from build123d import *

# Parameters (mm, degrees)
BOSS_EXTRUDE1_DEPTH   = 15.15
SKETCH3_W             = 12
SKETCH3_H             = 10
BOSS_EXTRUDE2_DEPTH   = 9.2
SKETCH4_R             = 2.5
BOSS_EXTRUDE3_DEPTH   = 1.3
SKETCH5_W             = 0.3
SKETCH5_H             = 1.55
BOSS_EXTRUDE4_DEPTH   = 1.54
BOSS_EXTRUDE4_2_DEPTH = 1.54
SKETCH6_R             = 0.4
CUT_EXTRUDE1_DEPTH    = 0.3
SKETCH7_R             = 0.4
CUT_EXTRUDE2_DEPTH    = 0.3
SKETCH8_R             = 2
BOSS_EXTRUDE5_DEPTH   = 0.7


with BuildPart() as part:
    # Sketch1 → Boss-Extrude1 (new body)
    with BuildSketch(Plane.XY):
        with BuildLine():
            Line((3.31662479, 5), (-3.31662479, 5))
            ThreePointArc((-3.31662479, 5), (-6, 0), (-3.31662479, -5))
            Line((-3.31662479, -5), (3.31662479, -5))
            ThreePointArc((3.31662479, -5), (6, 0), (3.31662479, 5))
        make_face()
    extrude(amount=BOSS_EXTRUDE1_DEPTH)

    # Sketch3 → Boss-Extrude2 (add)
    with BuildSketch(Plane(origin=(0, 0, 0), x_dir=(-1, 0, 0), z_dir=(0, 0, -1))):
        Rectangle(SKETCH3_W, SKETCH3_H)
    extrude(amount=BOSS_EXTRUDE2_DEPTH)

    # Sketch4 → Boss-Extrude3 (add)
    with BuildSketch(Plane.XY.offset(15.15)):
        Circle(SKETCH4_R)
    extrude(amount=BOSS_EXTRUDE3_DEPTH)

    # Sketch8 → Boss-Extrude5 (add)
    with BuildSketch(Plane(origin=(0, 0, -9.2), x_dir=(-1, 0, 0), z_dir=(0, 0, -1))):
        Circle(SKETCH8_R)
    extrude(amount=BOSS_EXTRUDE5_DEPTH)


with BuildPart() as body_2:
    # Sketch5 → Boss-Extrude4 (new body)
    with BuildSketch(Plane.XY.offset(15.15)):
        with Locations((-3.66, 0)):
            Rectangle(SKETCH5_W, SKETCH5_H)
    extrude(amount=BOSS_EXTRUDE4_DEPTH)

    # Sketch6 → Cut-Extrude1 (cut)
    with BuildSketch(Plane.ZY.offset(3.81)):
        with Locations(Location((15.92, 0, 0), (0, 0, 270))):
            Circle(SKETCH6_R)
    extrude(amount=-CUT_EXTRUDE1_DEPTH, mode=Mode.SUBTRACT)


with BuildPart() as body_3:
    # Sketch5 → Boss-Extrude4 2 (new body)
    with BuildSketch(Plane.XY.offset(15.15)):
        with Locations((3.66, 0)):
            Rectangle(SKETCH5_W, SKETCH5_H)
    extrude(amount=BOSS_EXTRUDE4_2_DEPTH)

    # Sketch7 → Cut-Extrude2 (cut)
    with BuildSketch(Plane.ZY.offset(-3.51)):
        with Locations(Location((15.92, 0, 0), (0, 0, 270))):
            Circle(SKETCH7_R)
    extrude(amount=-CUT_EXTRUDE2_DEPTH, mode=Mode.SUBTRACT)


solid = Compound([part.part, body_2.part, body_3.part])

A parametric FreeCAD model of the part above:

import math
import FreeCAD as App
import Part
import Sketcher
from FreeCAD import Vector

doc = App.newDocument("Part")
body = doc.addObject("PartDesign::Body", "Body")

# Sketch on XY plane
sketch1 = body.newObject("Sketcher::SketchObject", "Sketch")
sketch1.AttachmentSupport = (doc.getObject("XY_Plane"), [""])
sketch1.MapMode = "FlatFace"
sketch1.addGeometry([
    Part.LineSegment(Vector(3, 5, 0), Vector(-3, 5, 0)),
    Part.ArcOfCircle(Part.Circle(Vector(0, 0, 0), Vector(0, 0, 1), 6), math.radians(124), math.radians(236)),
    Part.LineSegment(Vector(-3, -5, 0), Vector(3, -5, 0)),
    Part.ArcOfCircle(Part.Circle(Vector(0, 0, 0), Vector(0, 0, 1), 6), math.radians(-56), math.radians(56)),
], False)
sketch1.addConstraint([
    Sketcher.Constraint("Coincident", 0, 2, 1, 1),
    Sketcher.Constraint("Coincident", 1, 2, 2, 1),
    Sketcher.Constraint("Coincident", 2, 2, 3, 1),
    Sketcher.Constraint("Coincident", 3, 2, 0, 1),
    Sketcher.Constraint("Horizontal", 0),
    Sketcher.Constraint("Horizontal", 2),
    Sketcher.Constraint("Coincident", 1, 3, -1, 1),
    Sketcher.Constraint("Coincident", 3, 3, -1, 1),
    Sketcher.Constraint("Equal", 1, 3),
    Sketcher.Constraint("Vertical", 0, 2, 1, 2),
    Sketcher.Constraint("Radius", 1, 6.0),
    Sketcher.Constraint("DistanceY", -1, 1, 0, 2, 5.0),
])
pad1 = body.newObject("PartDesign::Pad", "Pad")
pad1.Profile = sketch1
pad1.Length = 15.15

# Sketch on XY plane
sketch2 = body.newObject("Sketcher::SketchObject", "Sketch001")
sketch2.AttachmentSupport = (doc.getObject("XY_Plane"), [""])
sketch2.MapMode = "FlatFace"
sketch2.addGeometry([
    Part.LineSegment(Vector(6, 5, 0), Vector(6, -5, 0)),
    Part.LineSegment(Vector(6, -5, 0), Vector(-6, -5, 0)),
    Part.LineSegment(Vector(-6, -5, 0), Vector(-6, 5, 0)),
    Part.LineSegment(Vector(-6, 5, 0), Vector(6, 5, 0)),
], False)
sketch2.addConstraint([
    Sketcher.Constraint("Coincident", 0, 2, 1, 1),
    Sketcher.Constraint("Coincident", 1, 2, 2, 1),
    Sketcher.Constraint("Coincident", 2, 2, 3, 1),
    Sketcher.Constraint("Coincident", 3, 2, 0, 1),
    Sketcher.Constraint("Vertical", 0),
    Sketcher.Constraint("Horizontal", 1),
    Sketcher.Constraint("Vertical", 2),
    Sketcher.Constraint("Horizontal", 3),
    Sketcher.Constraint("Symmetric", 0, 2, 2, 2, -1, 1),
    Sketcher.Constraint("DistanceX", 1, 2, 1, 1, 12.0),
    Sketcher.Constraint("DistanceY", 0, 2, 0, 1, 10.0),
])
pad2 = body.newObject("PartDesign::Pad", "Pad001")
pad2.Profile = sketch2
pad2.Length = 9.2
pad2.Reversed = True

# Sketch on XY plane
sketch3 = body.newObject("Sketcher::SketchObject", "Sketch002")
sketch3.AttachmentSupport = (doc.getObject("XY_Plane"), [""])
sketch3.MapMode = "FlatFace"
sketch3.AttachmentOffset = App.Placement(Vector(0, 0, 15.15), App.Rotation())
sketch3.addGeometry(Part.Circle(Vector(0, 0, 0), Vector(0, 0, 1), 2.5), False)
sketch3.addConstraint([
    Sketcher.Constraint("Coincident", 0, 3, -1, 1),
    Sketcher.Constraint("Diameter", 0, 5.0),
])
pad3 = body.newObject("PartDesign::Pad", "Pad002")
pad3.Profile = sketch3
pad3.Length = 1.3

# Sketch on XY plane
sketch4 = body.newObject("Sketcher::SketchObject", "Sketch003")
sketch4.AttachmentSupport = (doc.getObject("XY_Plane"), [""])
sketch4.MapMode = "FlatFace"
sketch4.AttachmentOffset = App.Placement(Vector(0, 0, -9.2), App.Rotation())
sketch4.addGeometry(Part.Circle(Vector(0, 0, 0), Vector(0, 0, 1), 2), False)
sketch4.addConstraint([
    Sketcher.Constraint("Coincident", 0, 3, -1, 1),
    Sketcher.Constraint("Diameter", 0, 4.0),
])
pad4 = body.newObject("PartDesign::Pad", "Pad003")
pad4.Profile = sketch4
pad4.Length = 0.7
pad4.Reversed = True
body2 = doc.addObject("PartDesign::Body", "Body001")

# Sketch on XY plane
sketch5 = body2.newObject("Sketcher::SketchObject", "Sketch004")
sketch5.AttachmentSupport = (doc.getObject("XY_Plane001"), [""])
sketch5.MapMode = "FlatFace"
sketch5.AttachmentOffset = App.Placement(Vector(0, 0, 15.15), App.Rotation())
sketch5.addGeometry([
    Part.LineSegment(Vector(-3.81, 0.78, 0), Vector(-3.81, -0.78, 0)),
    Part.LineSegment(Vector(-3.81, -0.78, 0), Vector(-3.51, -0.78, 0)),
    Part.LineSegment(Vector(-3.51, -0.78, 0), Vector(-3.51, 0.78, 0)),
    Part.LineSegment(Vector(-3.51, 0.78, 0), Vector(-3.81, 0.78, 0)),
], False)
sketch5.addConstraint([
    Sketcher.Constraint("Coincident", 0, 2, 1, 1),
    Sketcher.Constraint("Coincident", 1, 2, 2, 1),
    Sketcher.Constraint("Coincident", 2, 2, 3, 1),
    Sketcher.Constraint("Coincident", 3, 2, 0, 1),
    Sketcher.Constraint("Vertical", 0),
    Sketcher.Constraint("Horizontal", 1),
    Sketcher.Constraint("Vertical", 2),
    Sketcher.Constraint("Horizontal", 3),
    Sketcher.Constraint("DistanceX", 1, 1, 1, 2, 0.3),
    Sketcher.Constraint("DistanceY", 0, 2, 0, 1, 1.55),
    Sketcher.Constraint("DistanceX", 0, 2, -1, 1, 3.81),
    Sketcher.Constraint("DistanceY", 0, 2, -1, 1, 0.775),
])
pad5 = body2.newObject("PartDesign::Pad", "Pad004")
pad5.Profile = sketch5
pad5.Length = 1.54

# Sketch on YZ plane
sketch6 = body2.newObject("Sketcher::SketchObject", "Sketch005")
sketch6.AttachmentSupport = (doc.getObject("YZ_Plane001"), [""])
sketch6.MapMode = "FlatFace"
sketch6.AttachmentOffset = App.Placement(Vector(0, 0, -3.81), App.Rotation())
sketch6.addGeometry(Part.Circle(Vector(0, 15.92, 0), Vector(0, 0, 1), 0.4), False)
sketch6.addConstraint([
    Sketcher.Constraint("PointOnObject", 0, 3, -2),
    Sketcher.Constraint("Diameter", 0, 0.8),
    Sketcher.Constraint("DistanceY", -1, 1, 0, 3, 15.92),
])
pocket1 = body2.newObject("PartDesign::Pocket", "Pocket")
pocket1.Profile = sketch6
pocket1.Length = 0.3
pocket1.Reversed = True
body3 = doc.addObject("PartDesign::Body", "Body002")

# Sketch on XY plane
sketch7 = body3.newObject("Sketcher::SketchObject", "Sketch006")
sketch7.AttachmentSupport = (doc.getObject("XY_Plane002"), [""])
sketch7.MapMode = "FlatFace"
sketch7.AttachmentOffset = App.Placement(Vector(0, 0, 15.15), App.Rotation())
sketch7.addGeometry([
    Part.LineSegment(Vector(3.51, 0.78, 0), Vector(3.51, -0.78, 0)),
    Part.LineSegment(Vector(3.51, -0.78, 0), Vector(3.81, -0.78, 0)),
    Part.LineSegment(Vector(3.81, -0.78, 0), Vector(3.81, 0.78, 0)),
    Part.LineSegment(Vector(3.81, 0.78, 0), Vector(3.51, 0.78, 0)),
], False)
sketch7.addConstraint([
    Sketcher.Constraint("Coincident", 0, 2, 1, 1),
    Sketcher.Constraint("Coincident", 1, 2, 2, 1),
    Sketcher.Constraint("Coincident", 2, 2, 3, 1),
    Sketcher.Constraint("Coincident", 3, 2, 0, 1),
    Sketcher.Constraint("Vertical", 0),
    Sketcher.Constraint("Horizontal", 1),
    Sketcher.Constraint("Vertical", 2),
    Sketcher.Constraint("Horizontal", 3),
    Sketcher.Constraint("DistanceX", 1, 1, 1, 2, 0.3),
    Sketcher.Constraint("DistanceY", 0, 2, 0, 1, 1.55),
    Sketcher.Constraint("DistanceX", -1, 1, 0, 2, 3.51),
    Sketcher.Constraint("DistanceY", 0, 2, -1, 1, 0.775),
])
pad6 = body3.newObject("PartDesign::Pad", "Pad005")
pad6.Profile = sketch7
pad6.Length = 1.54

# Sketch on YZ plane
sketch8 = body3.newObject("Sketcher::SketchObject", "Sketch007")
sketch8.AttachmentSupport = (doc.getObject("YZ_Plane002"), [""])
sketch8.MapMode = "FlatFace"
sketch8.AttachmentOffset = App.Placement(Vector(0, 0, 3.51), App.Rotation())
sketch8.addGeometry(Part.Circle(Vector(0, 15.92, 0), Vector(0, 0, 1), 0.4), False)
sketch8.addConstraint([
    Sketcher.Constraint("PointOnObject", 0, 3, -2),
    Sketcher.Constraint("Diameter", 0, 0.8),
    Sketcher.Constraint("DistanceY", -1, 1, 0, 3, 15.92),
])
pocket2 = body3.newObject("PartDesign::Pocket", "Pocket001")
pocket2.Profile = sketch8
pocket2.Length = 0.3
pocket2.Reversed = True

doc.recompute()
